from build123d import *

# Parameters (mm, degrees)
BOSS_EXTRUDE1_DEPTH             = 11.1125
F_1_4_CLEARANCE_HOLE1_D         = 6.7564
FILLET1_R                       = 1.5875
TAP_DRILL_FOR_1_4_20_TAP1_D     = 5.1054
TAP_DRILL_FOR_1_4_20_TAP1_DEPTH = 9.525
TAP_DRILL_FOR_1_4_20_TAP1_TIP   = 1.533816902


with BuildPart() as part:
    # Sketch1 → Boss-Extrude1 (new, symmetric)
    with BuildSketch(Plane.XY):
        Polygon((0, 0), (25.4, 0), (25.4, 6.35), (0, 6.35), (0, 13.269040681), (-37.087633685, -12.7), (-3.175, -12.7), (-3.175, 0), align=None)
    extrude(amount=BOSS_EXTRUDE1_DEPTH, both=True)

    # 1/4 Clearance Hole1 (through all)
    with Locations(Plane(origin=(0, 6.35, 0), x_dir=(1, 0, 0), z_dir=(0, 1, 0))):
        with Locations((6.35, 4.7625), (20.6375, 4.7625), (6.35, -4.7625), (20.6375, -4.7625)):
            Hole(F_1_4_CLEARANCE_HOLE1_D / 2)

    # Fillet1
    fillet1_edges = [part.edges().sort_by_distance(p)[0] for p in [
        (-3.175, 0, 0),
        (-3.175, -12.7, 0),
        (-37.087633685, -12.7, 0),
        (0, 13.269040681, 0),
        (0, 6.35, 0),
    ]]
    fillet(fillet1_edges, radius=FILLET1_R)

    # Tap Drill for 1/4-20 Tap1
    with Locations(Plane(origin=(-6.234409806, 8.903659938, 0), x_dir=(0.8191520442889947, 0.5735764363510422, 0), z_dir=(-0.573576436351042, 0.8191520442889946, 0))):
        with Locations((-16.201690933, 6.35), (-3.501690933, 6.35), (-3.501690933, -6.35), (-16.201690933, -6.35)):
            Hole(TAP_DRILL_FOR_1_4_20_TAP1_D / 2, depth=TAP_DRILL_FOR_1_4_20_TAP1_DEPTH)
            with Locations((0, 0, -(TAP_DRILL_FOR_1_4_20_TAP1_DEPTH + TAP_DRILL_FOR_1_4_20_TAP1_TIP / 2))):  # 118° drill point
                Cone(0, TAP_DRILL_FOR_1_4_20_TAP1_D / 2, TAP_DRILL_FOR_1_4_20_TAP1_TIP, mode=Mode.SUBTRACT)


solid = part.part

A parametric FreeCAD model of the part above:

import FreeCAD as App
import Part
import Sketcher
Q = App.Units.Quantity


def edges_at(feature, points):
    """Names of the edges that pass closest to the given points."""
    edges = feature.Shape.Edges
    near = lambda p: min(range(len(edges)), key=lambda i: edges[i].distToShape(Part.Vertex(*p))[0])
    return sorted({f"Edge{near(p) + 1}" for p in points})


def add_polygon(sketch, points):
    """Adds a closed chain of lines whose ends are joined by coincident constraints."""
    first, n = sketch.GeometryCount, len(points)
    for a, b in zip(points, points[1:] + points[:1]):
        sketch.addGeometry(Part.LineSegment(App.Vector(*a, 0), App.Vector(*b, 0)), False)
    for i in range(n):
        sketch.addConstraint(Sketcher.Constraint("Coincident", first + i, 2, first + (i + 1) % n, 1))

doc = App.newDocument("Part")
body = doc.addObject("PartDesign::Body", "Body")

# Sketch on XY plane
sketch1 = body.newObject("Sketcher::SketchObject", "Sketch")
sketch1.AttachmentSupport = (doc.getObject("XY_Plane"), [""])
sketch1.MapMode = "FlatFace"
add_polygon(sketch1, [(25.4, 0), (25.4, 6.35), (0, 6.35), (0, 13.269041), (-37.087634, -12.7), (-3.175, -12.7), (-3.175, 0)])  # lines 0-6
sketch1.addConstraint(Sketcher.Constraint("Vertical", 0))
sketch1.addConstraint(Sketcher.Constraint("Horizontal", 1))
sketch1.addConstraint(Sketcher.Constraint("Vertical", 2))
sketch1.addConstraint(Sketcher.Constraint("Horizontal", 4))
sketch1.addConstraint(Sketcher.Constraint("Vertical", 5))
sketch1.addConstraint(Sketcher.Constraint("Horizontal", 6))
sketch1.addConstraint(Sketcher.Constraint("PointOnObject", 1, 2, -2))
sketch1.addConstraint(Sketcher.Constraint("PointOnObject", 5, 2, -1))
sketch1.addConstraint(Sketcher.Constraint("DistanceX", 1, 2, 1, 1, Q("1 in")))
sketch1.addConstraint(Sketcher.Constraint("DistanceY", 5, 1, 5, 2, Q("0.5 in")))
sketch1.addConstraint(Sketcher.Constraint("Angle", 3, Q("-145 deg")))
sketch1.addConstraint(Sketcher.Constraint("DistanceY", 0, 1, 0, 2, Q("0.25 in")))
sketch1.addConstraint(Sketcher.Constraint("DistanceX", 6, 1, 6, 2, Q("1.125 in")))
sketch1.addConstraint(Sketcher.Constraint("DistanceY", 2, 1, 2, 2, 6.919041))
pad1 = body.newObject("PartDesign::Pad", "Pad")
pad1.Profile = sketch1
pad1.Length = Q("0.875 in")
pad1.Midplane = True

# Sketch on XZ plane
sketch2 = body.newObject("Sketcher::SketchObject", "Sketch001")
sketch2.AttachmentSupport = (doc.getObject("XZ_Plane"), [""])
sketch2.MapMode = "FlatFace"
sketch2.AttachmentOffset = App.Placement(App.Vector(0, 0, -0.25 * 25.4), App.Rotation())
sketch2.addGeometry(Part.Circle(App.Vector(6.35, -4.7625, 0), App.Vector(0, 0, 1), 3.3782), False)
sketch2.addGeometry(Part.Circle(App.Vector(20.6375, -4.7625, 0), App.Vector(0, 0, 1), 3.3782), False)
sketch2.addGeometry(Part.Circle(App.Vector(6.35, 4.7625, 0), App.Vector(0, 0, 1), 3.3782), False)
sketch2.addGeometry(Part.Circle(App.Vector(20.6375, 4.7625, 0), App.Vector(0, 0, 1), 3.3782), False)
sketch2.addConstraint(Sketcher.Constraint("Equal", 0, 1))
sketch2.addConstraint(Sketcher.Constraint("Equal", 1, 2))
sketch2.addConstraint(Sketcher.Constraint("Equal", 2, 3))
sketch2.addConstraint(Sketcher.Constraint("Symmetric", 0, 3, 2, 3, -1))
sketch2.addConstraint(Sketcher.Constraint("Symmetric", 1, 3, 3, 3, -1))
sketch2.addConstraint(Sketcher.Constraint("Horizontal", 0, 3, 1, 3))
sketch2.addConstraint(Sketcher.Constraint("Diameter", 0, Q("0.266 in")))
sketch2.addConstraint(Sketcher.Constraint("DistanceX", -1, 1, 0, 3, Q("0.25 in")))
sketch2.addConstraint(Sketcher.Constraint("DistanceY", 0, 3, -1, 1, Q("0.1875 in")))
sketch2.addConstraint(Sketcher.Constraint("DistanceX", -1, 1, 1, 3, Q("0.8125 in")))
doc.recompute()
hole = body.newObject("PartDesign::Hole", "Hole")
hole.Profile = sketch2
hole.ThreadType = "None"
hole.Diameter = Q("0.266 in")
hole.DepthType = "ThroughAll"
hole.Reversed = True
doc.recompute()

fillet = body.newObject("PartDesign::Fillet", "Fillet")
fillet.Base = (hole, edges_at(hole, [
    (-3.175, 0, 0),
    (-3.175, -12.7, 0),
    (-37.088, -12.7, 0),
    (0, 13.269, 0),
    (0, 6.35, 0),
]))
fillet.Radius = Q("0.0625 in")

# Sketch on an angled plane
sketch3 = body.newObject("Sketcher::SketchObject", "Sketch002")
sketch3.Placement = App.Placement(App.Vector(-6.23441, 8.90366, 0), App.Rotation(App.Vector(0.819152044, 0.573576436, 0), App.Vector(0, 0, -0.999999999), App.Vector(-0.573576436, 0.819152044, 0), "ZXY"))
sketch3.addGeometry(Part.Circle(App.Vector(-16.201691, 6.35, 0), App.Vector(0, 0, 1), 2.5527), False)
sketch3.addGeometry(Part.Circle(App.Vector(-3.501691, 6.35, 0), App.Vector(0, 0, 1), 2.5527), False)
sketch3.addGeometry(Part.Circle(App.Vector(-3.501691, -6.35, 0), App.Vector(0, 0, 1), 2.5527), False)
sketch3.addGeometry(Part.Circle(App.Vector(-16.201691, -6.35, 0), App.Vector(0, 0, 1), 2.5527), False)
sketch3.addConstraint(Sketcher.Constraint("Equal", 0, 1))
sketch3.addConstraint(Sketcher.Constraint("Equal", 1, 2))
sketch3.addConstraint(Sketcher.Constraint("Equal", 2, 3))
sketch3.addConstraint(Sketcher.Constraint("Symmetric", 1, 3, 2, 3, -1))
sketch3.addConstraint(Sketcher.Constraint("Symmetric", 0, 3, 3, 3, -1))
sketch3.addConstraint(Sketcher.Constraint("Horizontal", 0, 3, 1, 3))
sketch3.addConstraint(Sketcher.Constraint("Diameter", 0, Q("0.201 in")))
sketch3.addConstraint(Sketcher.Constraint("DistanceX", 0, 3, 1, 3, Q("0.5 in")))
sketch3.addConstraint(Sketcher.Constraint("DistanceY", 2, 3, 1, 3, Q("0.5 in")))
sketch3.addConstraint(Sketcher.Constraint("DistanceX", 0, 3, -1, 1, 16.201691))
doc.recompute()
hole2 = body.newObject("PartDesign::Hole", "Hole001")
hole2.Profile = sketch3
hole2.ThreadType = "None"
hole2.Diameter = Q("0.201 in")
hole2.DepthType = "Dimension"
hole2.Depth = Q("0.375 in")
hole2.DrillPoint = "Angled"
hole2.DrillPointAngle = 118

doc.recompute()
